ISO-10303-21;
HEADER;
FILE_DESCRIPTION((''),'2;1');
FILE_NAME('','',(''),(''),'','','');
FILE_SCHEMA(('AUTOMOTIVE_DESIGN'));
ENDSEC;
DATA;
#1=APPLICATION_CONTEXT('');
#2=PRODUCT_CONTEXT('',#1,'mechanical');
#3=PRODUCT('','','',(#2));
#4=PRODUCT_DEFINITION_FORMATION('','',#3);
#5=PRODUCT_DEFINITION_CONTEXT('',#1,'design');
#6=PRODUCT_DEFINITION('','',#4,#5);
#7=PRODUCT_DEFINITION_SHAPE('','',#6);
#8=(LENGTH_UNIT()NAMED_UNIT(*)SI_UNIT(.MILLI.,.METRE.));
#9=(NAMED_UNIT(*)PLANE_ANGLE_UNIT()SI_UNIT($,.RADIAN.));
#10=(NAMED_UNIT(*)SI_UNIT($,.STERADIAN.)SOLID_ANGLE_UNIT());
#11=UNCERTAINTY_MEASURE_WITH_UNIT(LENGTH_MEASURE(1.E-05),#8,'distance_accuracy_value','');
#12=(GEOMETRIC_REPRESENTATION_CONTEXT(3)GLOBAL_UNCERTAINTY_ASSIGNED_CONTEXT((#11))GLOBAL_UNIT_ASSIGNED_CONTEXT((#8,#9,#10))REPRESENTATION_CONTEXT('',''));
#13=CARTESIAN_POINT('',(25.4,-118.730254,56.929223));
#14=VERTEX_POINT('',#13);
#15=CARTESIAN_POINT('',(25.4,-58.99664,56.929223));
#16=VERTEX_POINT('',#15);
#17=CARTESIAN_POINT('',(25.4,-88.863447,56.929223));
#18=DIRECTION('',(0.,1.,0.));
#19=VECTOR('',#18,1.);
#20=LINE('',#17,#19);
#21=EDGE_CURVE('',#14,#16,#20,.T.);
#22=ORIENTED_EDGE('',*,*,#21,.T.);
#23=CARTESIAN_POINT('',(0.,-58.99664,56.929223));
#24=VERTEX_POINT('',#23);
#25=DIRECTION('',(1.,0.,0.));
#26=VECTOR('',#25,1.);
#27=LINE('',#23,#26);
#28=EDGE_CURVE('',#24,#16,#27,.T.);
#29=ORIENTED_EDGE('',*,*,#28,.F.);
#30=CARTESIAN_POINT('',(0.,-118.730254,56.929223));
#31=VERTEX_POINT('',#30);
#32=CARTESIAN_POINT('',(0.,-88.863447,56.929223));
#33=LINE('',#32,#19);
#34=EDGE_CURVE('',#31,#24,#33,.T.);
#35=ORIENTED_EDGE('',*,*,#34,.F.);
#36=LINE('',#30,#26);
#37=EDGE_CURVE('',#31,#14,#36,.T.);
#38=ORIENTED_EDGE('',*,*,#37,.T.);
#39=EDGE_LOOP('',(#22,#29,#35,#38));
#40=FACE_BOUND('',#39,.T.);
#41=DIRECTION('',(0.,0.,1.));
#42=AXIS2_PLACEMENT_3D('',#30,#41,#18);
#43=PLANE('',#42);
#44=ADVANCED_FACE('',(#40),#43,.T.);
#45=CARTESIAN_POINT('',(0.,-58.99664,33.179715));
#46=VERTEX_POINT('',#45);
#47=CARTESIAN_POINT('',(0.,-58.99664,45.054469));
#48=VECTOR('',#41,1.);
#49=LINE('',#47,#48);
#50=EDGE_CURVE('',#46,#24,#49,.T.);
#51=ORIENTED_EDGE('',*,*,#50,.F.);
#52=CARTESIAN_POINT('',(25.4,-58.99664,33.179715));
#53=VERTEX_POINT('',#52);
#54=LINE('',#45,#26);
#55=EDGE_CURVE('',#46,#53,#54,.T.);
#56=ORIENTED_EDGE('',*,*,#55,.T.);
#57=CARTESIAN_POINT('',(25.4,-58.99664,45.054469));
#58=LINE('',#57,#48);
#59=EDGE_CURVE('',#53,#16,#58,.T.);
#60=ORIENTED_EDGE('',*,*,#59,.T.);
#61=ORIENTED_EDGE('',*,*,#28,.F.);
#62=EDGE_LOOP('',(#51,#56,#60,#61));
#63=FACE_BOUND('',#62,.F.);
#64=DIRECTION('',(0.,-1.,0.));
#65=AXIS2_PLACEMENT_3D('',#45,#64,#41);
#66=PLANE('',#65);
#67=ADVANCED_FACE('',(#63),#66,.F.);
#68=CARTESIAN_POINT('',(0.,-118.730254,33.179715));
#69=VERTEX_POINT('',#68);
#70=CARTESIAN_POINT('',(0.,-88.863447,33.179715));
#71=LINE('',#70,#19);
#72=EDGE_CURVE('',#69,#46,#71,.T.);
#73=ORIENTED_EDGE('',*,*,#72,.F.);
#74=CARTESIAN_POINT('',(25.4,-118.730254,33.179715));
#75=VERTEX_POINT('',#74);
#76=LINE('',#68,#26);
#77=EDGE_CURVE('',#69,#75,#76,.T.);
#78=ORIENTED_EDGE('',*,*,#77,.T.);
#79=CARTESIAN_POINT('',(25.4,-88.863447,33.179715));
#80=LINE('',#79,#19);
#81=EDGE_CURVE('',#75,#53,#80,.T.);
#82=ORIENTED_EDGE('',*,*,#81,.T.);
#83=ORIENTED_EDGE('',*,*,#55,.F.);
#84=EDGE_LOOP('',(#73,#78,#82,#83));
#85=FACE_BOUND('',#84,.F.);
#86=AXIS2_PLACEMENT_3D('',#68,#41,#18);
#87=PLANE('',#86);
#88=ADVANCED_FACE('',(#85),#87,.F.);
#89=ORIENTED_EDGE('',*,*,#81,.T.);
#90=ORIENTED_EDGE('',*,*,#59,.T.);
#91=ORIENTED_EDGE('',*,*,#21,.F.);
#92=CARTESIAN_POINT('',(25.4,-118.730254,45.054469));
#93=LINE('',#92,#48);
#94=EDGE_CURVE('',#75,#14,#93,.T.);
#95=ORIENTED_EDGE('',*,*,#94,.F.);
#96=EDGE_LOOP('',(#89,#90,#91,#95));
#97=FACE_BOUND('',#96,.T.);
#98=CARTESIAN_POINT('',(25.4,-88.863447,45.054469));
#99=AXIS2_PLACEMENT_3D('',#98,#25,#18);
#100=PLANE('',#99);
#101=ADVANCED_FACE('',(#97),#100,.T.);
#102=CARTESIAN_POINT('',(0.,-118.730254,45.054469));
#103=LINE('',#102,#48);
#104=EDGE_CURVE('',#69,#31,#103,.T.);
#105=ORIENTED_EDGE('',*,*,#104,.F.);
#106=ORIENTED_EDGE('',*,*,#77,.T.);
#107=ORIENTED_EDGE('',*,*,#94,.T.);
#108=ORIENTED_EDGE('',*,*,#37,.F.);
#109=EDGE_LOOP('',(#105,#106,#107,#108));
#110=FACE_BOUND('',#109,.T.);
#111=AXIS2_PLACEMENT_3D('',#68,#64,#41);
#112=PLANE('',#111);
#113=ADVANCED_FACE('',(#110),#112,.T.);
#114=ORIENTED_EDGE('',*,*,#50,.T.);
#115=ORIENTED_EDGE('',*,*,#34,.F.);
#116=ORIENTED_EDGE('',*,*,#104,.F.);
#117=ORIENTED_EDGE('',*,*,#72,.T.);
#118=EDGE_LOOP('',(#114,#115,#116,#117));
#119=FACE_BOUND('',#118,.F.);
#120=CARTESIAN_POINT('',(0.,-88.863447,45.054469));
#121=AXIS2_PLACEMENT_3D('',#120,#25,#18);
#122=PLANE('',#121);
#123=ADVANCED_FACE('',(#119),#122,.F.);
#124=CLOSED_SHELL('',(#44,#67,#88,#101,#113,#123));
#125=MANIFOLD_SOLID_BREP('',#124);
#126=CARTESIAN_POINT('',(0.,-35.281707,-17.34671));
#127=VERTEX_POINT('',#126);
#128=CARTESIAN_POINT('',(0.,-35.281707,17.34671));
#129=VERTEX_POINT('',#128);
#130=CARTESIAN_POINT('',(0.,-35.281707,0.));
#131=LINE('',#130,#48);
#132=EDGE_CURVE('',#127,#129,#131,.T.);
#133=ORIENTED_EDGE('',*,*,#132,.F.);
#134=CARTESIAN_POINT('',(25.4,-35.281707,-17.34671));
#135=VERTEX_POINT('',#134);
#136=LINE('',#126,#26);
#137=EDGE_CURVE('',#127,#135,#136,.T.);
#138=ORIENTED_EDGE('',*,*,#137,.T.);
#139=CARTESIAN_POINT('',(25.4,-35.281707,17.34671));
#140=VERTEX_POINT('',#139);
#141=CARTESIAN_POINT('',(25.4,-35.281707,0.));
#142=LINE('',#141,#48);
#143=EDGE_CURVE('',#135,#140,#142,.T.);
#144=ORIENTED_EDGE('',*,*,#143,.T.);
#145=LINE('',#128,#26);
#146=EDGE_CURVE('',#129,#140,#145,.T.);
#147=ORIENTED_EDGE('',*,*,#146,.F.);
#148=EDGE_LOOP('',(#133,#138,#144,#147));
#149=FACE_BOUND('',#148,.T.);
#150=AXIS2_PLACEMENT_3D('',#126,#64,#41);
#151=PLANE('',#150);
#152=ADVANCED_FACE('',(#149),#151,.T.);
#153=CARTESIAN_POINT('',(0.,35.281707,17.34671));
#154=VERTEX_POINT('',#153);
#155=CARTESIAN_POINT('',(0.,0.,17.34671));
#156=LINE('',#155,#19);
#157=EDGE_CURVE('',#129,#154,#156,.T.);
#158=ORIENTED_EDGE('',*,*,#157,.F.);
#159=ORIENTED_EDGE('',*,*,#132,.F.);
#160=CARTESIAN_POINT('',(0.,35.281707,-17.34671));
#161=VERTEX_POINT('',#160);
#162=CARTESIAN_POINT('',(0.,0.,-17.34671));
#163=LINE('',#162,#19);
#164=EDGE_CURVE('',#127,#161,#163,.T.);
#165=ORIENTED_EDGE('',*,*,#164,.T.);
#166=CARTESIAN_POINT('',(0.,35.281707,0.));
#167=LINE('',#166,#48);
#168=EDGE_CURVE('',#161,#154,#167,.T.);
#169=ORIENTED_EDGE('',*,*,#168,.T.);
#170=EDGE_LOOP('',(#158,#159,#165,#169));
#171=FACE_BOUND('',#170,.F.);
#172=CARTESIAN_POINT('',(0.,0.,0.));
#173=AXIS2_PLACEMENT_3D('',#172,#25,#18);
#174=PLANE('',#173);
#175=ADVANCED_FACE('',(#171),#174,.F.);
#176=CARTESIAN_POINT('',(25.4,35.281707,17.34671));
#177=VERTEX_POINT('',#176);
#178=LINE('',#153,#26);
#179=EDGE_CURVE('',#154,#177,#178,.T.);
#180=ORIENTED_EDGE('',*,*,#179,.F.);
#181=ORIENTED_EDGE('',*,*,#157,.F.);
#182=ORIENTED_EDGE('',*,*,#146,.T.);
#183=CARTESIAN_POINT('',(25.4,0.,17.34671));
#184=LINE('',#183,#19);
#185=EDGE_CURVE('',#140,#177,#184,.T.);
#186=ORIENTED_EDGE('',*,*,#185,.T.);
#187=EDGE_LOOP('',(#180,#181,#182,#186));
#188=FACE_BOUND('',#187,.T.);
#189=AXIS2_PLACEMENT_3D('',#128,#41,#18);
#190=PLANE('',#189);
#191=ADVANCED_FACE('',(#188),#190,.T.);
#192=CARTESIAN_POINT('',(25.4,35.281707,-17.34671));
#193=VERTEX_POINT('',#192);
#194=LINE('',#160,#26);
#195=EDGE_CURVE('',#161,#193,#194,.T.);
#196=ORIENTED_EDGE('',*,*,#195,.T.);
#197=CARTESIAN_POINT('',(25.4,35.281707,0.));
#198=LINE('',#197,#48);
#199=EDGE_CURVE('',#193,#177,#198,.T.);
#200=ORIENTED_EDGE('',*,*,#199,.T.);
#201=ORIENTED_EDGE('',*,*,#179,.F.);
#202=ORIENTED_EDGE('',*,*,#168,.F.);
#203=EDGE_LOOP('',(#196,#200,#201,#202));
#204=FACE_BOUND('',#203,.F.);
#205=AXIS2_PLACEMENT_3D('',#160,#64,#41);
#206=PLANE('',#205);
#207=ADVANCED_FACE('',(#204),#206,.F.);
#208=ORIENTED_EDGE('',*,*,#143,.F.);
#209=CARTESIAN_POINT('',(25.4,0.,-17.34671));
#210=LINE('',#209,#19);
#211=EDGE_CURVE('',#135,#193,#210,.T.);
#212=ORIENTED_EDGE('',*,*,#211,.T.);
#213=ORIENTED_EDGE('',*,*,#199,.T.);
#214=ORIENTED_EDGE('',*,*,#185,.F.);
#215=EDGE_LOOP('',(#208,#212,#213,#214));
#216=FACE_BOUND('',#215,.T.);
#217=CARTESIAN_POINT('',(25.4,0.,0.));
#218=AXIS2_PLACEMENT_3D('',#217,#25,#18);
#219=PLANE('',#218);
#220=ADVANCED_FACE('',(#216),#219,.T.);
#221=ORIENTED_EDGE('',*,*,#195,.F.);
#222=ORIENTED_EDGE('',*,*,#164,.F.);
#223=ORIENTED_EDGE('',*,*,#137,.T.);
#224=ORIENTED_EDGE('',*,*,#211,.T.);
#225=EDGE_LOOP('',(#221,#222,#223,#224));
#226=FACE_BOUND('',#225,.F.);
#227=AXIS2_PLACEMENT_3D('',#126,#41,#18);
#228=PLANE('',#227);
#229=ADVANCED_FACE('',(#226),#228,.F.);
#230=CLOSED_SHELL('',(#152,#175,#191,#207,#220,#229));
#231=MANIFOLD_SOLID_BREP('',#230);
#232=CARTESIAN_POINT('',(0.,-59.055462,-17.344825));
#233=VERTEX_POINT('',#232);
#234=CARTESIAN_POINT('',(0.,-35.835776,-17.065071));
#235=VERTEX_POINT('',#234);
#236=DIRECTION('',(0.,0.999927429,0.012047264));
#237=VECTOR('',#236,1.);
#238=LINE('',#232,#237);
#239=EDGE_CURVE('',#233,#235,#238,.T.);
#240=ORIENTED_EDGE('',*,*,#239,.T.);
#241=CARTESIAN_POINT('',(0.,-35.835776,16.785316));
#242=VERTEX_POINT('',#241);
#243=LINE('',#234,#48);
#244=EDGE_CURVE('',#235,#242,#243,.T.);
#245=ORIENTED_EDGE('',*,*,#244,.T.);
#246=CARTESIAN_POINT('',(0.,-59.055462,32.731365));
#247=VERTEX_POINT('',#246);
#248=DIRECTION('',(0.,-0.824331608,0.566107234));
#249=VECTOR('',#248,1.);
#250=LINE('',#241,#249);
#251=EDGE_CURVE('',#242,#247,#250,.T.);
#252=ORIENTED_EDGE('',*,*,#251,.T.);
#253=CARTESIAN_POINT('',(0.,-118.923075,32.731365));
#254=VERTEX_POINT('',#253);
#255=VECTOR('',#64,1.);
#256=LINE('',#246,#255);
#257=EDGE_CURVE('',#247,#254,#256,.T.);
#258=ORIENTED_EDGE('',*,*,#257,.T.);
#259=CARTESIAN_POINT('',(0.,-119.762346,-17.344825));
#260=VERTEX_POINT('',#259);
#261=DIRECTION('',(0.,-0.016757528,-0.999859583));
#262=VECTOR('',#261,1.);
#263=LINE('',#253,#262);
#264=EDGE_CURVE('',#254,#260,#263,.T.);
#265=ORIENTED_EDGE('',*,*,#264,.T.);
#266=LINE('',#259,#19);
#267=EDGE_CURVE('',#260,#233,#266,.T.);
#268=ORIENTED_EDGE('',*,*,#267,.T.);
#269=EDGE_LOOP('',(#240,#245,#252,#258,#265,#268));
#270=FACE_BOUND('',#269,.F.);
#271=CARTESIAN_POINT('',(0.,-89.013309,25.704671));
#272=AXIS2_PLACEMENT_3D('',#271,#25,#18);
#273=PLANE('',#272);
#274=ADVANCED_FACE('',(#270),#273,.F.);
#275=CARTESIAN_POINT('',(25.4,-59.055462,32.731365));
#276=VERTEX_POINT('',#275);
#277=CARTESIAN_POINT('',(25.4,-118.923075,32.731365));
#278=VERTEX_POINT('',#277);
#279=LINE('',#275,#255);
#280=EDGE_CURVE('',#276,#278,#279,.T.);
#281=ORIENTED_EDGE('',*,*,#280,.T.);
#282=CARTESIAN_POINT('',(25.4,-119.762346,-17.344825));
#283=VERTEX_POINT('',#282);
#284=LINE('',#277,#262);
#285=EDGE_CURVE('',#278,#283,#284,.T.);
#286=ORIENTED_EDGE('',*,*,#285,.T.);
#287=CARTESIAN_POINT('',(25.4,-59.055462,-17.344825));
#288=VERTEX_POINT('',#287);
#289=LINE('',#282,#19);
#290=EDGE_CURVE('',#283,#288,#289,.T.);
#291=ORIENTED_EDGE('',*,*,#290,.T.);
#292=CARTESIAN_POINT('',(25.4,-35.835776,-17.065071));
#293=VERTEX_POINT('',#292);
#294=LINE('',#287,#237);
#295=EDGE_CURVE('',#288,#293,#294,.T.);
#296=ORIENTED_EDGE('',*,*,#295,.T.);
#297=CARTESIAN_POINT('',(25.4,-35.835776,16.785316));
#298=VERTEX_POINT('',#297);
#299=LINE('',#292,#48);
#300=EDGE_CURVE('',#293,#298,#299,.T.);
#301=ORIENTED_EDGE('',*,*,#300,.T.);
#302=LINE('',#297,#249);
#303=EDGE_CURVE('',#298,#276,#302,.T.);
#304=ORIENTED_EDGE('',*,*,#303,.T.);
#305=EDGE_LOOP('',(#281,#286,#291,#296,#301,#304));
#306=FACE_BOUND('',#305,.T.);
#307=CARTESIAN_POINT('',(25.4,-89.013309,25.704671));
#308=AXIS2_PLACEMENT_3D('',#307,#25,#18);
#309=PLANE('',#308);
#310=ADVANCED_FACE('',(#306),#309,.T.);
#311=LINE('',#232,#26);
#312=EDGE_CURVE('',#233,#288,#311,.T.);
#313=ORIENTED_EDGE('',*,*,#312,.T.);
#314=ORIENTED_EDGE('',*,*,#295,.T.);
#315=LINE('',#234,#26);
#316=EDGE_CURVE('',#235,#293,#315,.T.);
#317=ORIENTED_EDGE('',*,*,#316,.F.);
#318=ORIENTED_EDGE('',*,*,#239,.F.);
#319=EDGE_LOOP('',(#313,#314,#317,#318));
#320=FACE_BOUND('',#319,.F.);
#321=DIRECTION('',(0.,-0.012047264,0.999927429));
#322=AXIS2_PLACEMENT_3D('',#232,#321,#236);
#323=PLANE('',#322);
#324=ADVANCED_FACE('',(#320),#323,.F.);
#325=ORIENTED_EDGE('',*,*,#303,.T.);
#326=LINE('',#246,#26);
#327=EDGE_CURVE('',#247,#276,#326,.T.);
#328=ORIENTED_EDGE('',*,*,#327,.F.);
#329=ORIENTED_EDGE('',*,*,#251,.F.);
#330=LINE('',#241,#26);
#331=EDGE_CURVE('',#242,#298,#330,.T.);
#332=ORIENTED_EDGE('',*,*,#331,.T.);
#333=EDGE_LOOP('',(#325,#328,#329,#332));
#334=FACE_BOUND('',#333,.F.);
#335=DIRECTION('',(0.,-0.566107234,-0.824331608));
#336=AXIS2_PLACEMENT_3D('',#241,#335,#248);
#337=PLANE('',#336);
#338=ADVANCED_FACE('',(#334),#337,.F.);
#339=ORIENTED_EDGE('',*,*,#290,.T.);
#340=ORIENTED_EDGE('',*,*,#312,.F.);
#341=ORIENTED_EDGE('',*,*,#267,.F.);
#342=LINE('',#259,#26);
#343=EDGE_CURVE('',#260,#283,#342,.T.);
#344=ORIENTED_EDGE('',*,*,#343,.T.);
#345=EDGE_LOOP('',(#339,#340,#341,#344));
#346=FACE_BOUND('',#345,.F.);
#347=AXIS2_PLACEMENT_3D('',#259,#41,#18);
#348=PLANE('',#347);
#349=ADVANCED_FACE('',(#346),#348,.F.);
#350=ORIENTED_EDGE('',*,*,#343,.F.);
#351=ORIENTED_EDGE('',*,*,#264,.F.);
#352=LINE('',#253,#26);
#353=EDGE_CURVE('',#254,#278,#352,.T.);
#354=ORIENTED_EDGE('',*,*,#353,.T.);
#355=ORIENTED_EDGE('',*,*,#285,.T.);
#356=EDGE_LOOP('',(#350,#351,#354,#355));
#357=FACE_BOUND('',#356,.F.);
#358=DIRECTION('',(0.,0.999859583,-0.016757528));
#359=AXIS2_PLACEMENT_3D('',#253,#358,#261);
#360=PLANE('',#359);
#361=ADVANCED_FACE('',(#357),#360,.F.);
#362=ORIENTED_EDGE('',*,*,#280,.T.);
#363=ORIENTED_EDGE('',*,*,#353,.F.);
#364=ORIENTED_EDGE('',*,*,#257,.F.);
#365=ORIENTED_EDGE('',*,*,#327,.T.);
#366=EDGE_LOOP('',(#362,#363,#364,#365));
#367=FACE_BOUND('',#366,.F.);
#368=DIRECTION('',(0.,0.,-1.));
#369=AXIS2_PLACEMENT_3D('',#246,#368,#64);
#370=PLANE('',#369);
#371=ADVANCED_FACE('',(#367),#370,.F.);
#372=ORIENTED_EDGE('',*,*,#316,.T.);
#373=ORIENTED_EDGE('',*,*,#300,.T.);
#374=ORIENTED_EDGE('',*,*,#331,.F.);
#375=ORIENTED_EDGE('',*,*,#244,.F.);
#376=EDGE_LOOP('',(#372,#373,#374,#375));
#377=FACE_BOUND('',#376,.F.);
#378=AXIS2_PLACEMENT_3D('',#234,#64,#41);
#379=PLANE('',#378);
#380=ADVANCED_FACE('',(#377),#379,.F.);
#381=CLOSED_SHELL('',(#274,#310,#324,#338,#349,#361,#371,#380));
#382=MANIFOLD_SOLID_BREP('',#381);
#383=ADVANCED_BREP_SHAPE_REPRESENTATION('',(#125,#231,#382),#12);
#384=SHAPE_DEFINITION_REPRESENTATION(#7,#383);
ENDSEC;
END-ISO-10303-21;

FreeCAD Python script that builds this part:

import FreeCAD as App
import Part
import Sketcher
from FreeCAD import Vector
Q = App.Units.Quantity


def add_polygon(sketch, points):
    """Adds a closed chain of lines whose ends are joined by coincident constraints."""
    first, n = sketch.GeometryCount, len(points)
    for a, b in zip(points, points[1:] + points[:1]):
        sketch.addGeometry(Part.LineSegment(App.Vector(*a, 0), App.Vector(*b, 0)), False)
    for i in range(n):
        sketch.addConstraint(Sketcher.Constraint("Coincident", first + i, 2, first + (i + 1) % n, 1))

doc = App.newDocument("Part")
body = doc.addObject("PartDesign::Body", "Body")
body.AllowCompound = True

# Sketch on YZ plane
sketch1 = body.newObject("Sketcher::SketchObject", "Sketch")
sketch1.AttachmentSupport = (doc.getObject("YZ_Plane"), [""])
sketch1.MapMode = "FlatFace"
add_polygon(sketch1, [(-118.730254, 56.929223), (-118.730254, 33.179715), (-58.99664, 33.179715), (-58.99664, 56.929223)])  # lines 0-3
add_polygon(sketch1, [(-59.055462, 32.731365), (-118.923075, 32.731365), (-119.762346, -17.344825), (-59.055462, -17.344825), (-35.835776, -17.065071), (-35.835776, 16.785316)])  # lines 4-9
add_polygon(sketch1, [(-35.281707, 17.34671), (-35.281707, -17.34671), (35.281707, -17.34671), (35.281707, 17.34671)])  # lines 10-13
sketch1.addConstraint(Sketcher.Constraint("Vertical", 0))
sketch1.addConstraint(Sketcher.Constraint("Horizontal", 1))
sketch1.addConstraint(Sketcher.Constraint("Vertical", 2))
sketch1.addConstraint(Sketcher.Constraint("Horizontal", 3))
sketch1.addConstraint(Sketcher.Constraint("Horizontal", 4))
sketch1.addConstraint(Sketcher.Constraint("Horizontal", 6))
sketch1.addConstraint(Sketcher.Constraint("Vertical", 8))
sketch1.addConstraint(Sketcher.Constraint("Vertical", 10))
sketch1.addConstraint(Sketcher.Constraint("Horizontal", 11))
sketch1.addConstraint(Sketcher.Constraint("Vertical", 12))
sketch1.addConstraint(Sketcher.Constraint("Horizontal", 13))
sketch1.addConstraint(Sketcher.Constraint("Symmetric", 10, 2, 12, 2, -1, 1))
sketch1.addConstraint(Sketcher.Constraint("Vertical", 6, 2, 9, 2))
sketch1.addConstraint(Sketcher.Constraint("DistanceY", 10, 2, 10, 1, 34.69342))
sketch1.addConstraint(Sketcher.Constraint("DistanceX", 4, 2, 7, 2, 83.087299))
sketch1.addConstraint(Sketcher.Constraint("DistanceY", 8, 2, 1, 2, 16.394399))
sketch1.addConstraint(Sketcher.Constraint("Distance", 7, 23.221371))
sketch1.addConstraint(Sketcher.Constraint("DistanceX", 1, 1, 1, 2, 59.733614))
sketch1.addConstraint(Sketcher.Constraint("DistanceX", 4, 2, 4, 1, 59.867613))
sketch1.addConstraint(Sketcher.Constraint("DistanceX", 6, 1, 6, 2, 60.706884))
sketch1.addConstraint(Sketcher.Constraint("DistanceX", 11, 1, 11, 2, 70.563414))
sketch1.addConstraint(Sketcher.Constraint("DistanceY", 0, 2, 0, 1, 23.749508))
sketch1.addConstraint(Sketcher.Constraint("DistanceY", 8, 1, 8, 2, 33.850387))
sketch1.addConstraint(Sketcher.Constraint("DistanceX", 1, 2, -1, 1, 58.99664))
sketch1.addConstraint(Sketcher.Constraint("DistanceY", 7, 2, -1, 1, 17.065071))
sketch1.addConstraint(Sketcher.Constraint("DistanceX", 4, 2, 0, 2, 0.192821))
sketch1.addConstraint(Sketcher.Constraint("DistanceY", 4, 2, 0, 2, 0.44835))
pad1 = body.newObject("PartDesign::Pad", "Pad")
pad1.Profile = sketch1
pad1.Length = Q("1 in")

doc.recompute()
